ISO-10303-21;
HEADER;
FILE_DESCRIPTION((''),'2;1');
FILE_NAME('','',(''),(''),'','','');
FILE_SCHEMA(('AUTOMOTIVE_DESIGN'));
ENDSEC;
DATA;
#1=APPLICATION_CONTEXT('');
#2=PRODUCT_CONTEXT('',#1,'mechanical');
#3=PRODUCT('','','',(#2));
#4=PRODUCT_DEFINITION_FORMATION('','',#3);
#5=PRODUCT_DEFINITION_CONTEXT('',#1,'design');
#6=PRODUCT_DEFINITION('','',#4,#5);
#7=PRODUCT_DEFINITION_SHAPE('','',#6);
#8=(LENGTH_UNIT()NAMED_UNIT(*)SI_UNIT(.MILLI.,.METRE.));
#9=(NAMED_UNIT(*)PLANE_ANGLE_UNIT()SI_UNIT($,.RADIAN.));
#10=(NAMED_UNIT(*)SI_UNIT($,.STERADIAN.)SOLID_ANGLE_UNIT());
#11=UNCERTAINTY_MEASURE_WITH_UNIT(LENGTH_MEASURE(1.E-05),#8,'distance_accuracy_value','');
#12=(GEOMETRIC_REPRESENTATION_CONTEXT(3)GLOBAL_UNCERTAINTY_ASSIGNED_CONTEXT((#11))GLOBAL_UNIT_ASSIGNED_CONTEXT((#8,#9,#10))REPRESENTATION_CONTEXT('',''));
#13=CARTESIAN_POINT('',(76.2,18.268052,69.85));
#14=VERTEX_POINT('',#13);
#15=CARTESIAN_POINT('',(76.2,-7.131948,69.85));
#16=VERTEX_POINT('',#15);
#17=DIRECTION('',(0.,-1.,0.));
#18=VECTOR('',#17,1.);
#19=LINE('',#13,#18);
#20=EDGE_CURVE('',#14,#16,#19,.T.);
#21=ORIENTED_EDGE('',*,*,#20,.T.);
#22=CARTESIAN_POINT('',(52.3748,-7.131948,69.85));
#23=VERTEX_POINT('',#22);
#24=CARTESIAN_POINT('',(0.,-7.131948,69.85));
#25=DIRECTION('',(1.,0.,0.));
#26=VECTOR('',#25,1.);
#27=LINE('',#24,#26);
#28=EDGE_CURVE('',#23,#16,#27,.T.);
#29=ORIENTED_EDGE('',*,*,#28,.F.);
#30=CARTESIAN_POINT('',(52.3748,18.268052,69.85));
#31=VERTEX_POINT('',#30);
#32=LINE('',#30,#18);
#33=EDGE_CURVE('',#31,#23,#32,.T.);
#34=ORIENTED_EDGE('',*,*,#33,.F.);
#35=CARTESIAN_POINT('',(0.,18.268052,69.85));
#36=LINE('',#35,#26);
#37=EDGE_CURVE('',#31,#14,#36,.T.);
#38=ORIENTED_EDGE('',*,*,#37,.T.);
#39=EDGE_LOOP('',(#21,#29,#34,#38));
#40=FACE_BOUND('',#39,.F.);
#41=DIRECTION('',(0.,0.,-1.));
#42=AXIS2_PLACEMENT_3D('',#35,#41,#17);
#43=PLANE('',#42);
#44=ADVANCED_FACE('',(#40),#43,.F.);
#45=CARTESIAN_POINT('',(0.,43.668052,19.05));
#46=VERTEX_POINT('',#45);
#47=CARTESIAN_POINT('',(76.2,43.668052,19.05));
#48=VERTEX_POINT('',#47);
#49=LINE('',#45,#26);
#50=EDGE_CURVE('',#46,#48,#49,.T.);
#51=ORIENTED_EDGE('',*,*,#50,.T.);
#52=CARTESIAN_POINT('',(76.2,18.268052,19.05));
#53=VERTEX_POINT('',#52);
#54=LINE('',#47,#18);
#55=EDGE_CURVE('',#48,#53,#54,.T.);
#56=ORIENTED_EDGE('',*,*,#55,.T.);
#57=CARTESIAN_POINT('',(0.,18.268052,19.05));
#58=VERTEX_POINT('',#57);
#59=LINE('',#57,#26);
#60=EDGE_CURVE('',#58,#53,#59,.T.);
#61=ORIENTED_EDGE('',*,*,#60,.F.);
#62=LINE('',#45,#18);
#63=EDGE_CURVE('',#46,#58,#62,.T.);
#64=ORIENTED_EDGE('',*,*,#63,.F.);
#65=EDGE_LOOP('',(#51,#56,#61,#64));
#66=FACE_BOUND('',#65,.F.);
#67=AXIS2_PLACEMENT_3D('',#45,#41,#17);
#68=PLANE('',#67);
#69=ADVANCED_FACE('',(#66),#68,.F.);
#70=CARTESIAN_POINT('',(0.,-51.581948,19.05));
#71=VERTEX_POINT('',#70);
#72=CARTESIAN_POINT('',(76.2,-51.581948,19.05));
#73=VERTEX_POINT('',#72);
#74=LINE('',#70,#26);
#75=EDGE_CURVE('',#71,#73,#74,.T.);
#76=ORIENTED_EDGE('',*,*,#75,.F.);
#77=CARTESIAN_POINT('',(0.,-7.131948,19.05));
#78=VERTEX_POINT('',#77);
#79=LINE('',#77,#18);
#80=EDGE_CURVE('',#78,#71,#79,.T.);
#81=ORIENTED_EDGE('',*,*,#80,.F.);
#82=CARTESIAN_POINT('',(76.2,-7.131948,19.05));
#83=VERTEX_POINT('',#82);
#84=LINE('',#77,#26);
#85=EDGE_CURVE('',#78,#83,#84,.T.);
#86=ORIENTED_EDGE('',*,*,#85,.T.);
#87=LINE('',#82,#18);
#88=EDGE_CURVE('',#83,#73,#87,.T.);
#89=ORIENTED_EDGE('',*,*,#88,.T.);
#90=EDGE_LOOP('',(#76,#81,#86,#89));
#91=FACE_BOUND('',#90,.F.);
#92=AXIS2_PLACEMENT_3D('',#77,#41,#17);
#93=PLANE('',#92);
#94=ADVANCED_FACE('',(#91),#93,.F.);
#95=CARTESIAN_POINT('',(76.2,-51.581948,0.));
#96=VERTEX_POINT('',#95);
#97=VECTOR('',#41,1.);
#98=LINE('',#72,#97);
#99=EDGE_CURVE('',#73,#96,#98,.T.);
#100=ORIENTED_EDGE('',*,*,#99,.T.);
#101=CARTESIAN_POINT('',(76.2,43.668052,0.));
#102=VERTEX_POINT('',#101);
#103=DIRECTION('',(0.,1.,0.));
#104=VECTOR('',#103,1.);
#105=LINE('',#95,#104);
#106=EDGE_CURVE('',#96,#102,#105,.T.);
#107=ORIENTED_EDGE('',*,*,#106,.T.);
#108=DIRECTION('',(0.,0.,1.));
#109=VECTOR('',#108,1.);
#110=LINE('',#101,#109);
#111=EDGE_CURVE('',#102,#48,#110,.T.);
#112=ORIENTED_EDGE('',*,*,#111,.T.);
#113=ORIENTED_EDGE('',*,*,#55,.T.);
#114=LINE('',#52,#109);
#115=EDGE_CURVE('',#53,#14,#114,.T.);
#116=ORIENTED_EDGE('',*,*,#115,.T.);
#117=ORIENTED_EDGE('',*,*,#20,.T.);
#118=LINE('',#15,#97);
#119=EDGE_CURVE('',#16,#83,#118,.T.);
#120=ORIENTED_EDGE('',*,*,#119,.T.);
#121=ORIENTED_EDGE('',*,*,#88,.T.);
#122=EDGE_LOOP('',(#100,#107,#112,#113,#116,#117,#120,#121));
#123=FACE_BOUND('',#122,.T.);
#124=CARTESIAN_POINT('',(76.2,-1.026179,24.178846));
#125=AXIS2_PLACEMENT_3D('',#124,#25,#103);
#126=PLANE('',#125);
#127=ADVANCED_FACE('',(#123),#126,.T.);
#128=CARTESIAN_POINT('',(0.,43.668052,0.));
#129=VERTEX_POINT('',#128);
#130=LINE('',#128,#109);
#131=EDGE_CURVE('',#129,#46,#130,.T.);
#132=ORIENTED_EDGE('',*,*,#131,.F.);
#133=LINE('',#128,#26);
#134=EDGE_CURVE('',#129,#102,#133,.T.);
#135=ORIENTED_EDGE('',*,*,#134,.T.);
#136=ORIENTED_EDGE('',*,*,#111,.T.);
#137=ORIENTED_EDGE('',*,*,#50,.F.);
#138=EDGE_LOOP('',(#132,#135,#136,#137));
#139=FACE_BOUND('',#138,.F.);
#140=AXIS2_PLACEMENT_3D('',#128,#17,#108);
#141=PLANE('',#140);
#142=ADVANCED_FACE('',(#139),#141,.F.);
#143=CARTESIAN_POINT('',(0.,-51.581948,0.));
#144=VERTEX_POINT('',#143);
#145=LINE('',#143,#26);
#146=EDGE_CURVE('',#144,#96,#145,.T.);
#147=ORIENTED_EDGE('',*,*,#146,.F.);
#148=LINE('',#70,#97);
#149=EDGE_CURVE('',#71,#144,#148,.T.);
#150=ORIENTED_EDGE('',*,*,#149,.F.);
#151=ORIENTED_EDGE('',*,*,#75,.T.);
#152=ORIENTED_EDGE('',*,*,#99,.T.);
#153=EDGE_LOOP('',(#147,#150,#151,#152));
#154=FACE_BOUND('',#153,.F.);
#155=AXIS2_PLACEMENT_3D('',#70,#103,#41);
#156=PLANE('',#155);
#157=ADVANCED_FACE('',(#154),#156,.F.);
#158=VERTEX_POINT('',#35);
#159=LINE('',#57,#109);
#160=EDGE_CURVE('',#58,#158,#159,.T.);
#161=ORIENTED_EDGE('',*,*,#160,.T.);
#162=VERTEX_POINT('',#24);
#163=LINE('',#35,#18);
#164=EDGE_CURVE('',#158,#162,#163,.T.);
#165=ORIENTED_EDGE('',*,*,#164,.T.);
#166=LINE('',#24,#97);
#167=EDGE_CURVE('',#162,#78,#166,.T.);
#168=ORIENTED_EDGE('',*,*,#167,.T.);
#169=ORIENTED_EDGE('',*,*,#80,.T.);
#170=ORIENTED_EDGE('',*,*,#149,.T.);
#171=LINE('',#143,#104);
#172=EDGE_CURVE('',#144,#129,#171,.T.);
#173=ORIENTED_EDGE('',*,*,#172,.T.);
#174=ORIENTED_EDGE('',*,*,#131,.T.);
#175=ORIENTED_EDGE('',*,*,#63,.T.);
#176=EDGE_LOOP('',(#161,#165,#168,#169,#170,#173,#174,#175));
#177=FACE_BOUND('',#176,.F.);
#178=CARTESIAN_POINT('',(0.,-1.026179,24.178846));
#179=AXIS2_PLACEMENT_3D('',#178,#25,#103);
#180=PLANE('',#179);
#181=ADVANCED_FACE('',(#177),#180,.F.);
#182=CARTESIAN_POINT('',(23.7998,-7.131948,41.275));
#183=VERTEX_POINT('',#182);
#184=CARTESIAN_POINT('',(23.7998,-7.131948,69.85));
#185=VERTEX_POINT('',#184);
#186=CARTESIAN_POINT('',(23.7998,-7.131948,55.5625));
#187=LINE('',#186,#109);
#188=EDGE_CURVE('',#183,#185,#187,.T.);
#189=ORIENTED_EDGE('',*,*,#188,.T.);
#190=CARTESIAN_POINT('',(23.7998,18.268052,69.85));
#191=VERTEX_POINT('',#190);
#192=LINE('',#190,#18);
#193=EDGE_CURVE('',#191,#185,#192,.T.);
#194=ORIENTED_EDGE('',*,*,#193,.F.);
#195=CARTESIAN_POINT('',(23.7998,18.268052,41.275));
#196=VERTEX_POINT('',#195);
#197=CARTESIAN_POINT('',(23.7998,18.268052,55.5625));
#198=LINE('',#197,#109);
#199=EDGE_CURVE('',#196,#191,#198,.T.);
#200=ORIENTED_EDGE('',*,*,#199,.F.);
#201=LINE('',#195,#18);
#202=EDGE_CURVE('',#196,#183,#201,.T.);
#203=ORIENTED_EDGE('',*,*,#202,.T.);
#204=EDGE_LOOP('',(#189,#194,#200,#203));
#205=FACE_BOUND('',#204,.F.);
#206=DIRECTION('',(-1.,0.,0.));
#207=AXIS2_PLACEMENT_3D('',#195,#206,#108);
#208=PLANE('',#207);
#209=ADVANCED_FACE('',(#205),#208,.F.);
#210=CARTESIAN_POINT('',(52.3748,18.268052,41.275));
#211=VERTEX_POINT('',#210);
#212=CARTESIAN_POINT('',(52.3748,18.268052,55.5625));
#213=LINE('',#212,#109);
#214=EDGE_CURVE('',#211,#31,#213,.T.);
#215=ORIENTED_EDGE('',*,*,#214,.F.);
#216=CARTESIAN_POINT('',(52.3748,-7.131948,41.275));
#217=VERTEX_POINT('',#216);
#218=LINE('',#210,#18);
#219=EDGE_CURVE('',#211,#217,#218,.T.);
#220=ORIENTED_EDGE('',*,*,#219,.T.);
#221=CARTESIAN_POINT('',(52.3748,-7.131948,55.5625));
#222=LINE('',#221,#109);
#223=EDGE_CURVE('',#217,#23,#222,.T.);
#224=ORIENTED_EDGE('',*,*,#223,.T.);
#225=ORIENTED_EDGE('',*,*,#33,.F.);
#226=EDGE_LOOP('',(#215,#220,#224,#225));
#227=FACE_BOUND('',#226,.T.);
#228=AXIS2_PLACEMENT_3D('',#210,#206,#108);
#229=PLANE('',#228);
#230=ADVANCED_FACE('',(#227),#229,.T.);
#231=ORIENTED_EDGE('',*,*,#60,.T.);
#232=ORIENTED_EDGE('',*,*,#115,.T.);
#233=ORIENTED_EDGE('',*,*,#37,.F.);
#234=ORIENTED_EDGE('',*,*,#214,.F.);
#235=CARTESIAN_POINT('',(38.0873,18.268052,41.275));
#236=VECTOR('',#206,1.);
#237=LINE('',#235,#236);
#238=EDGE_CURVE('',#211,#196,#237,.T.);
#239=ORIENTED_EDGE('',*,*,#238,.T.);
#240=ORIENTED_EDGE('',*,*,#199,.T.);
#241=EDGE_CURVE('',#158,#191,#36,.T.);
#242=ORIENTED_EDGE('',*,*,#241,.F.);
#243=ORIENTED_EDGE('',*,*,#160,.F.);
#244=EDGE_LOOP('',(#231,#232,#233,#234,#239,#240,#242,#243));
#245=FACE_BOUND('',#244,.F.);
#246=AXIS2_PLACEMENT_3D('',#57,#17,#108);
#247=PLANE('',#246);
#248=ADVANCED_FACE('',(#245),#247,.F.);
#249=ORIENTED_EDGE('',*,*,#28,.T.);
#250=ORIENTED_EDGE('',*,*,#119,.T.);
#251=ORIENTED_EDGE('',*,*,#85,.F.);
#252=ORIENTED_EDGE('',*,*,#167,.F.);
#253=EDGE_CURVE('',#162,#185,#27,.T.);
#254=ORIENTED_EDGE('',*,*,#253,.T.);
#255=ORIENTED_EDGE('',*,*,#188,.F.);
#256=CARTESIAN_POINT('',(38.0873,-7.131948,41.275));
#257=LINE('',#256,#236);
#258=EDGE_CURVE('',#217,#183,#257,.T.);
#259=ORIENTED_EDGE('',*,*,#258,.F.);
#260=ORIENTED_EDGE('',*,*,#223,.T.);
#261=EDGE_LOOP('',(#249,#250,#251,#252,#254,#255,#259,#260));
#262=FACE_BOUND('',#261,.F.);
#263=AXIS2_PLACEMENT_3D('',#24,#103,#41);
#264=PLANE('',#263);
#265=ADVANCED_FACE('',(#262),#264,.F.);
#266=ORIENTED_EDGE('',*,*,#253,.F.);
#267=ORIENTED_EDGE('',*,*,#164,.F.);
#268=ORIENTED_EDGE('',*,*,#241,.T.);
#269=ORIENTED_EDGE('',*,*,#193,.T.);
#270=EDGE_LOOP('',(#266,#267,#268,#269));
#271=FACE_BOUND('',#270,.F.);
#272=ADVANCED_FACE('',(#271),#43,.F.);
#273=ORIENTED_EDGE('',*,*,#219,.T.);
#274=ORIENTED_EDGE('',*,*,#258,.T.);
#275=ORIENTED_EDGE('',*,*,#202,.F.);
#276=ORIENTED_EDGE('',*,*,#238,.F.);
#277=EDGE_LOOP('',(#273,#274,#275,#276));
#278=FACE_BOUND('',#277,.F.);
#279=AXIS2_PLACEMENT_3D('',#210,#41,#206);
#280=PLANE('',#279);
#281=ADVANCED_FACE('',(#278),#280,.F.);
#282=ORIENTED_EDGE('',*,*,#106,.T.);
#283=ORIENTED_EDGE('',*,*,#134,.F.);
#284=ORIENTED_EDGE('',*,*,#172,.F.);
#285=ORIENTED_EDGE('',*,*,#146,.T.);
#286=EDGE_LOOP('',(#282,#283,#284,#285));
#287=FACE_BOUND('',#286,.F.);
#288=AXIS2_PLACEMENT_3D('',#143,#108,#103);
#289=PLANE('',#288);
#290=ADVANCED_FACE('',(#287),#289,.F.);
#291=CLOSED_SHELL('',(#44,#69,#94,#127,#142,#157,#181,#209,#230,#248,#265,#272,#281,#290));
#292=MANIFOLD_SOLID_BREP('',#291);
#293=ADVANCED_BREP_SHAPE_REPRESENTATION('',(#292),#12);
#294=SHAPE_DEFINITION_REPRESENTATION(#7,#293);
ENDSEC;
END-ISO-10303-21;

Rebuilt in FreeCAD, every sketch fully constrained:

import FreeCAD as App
import Part
import Sketcher

V = App.Vector
Q = App.Units.Quantity

doc = App.newDocument("Part")
body = doc.addObject("PartDesign::Body", "Body")

# Sketch on YZ plane
sketch1 = body.newObject("Sketcher::SketchObject", "Sketch")
sketch1.AttachmentSupport = (doc.getObject("YZ_Plane"), [""])
sketch1.MapMode = "FlatFace"
sketch1.addGeometry(Part.LineSegment(V(-51.581948, 0, 0), V(43.668052, 0, 0)), False)
sketch1.addGeometry(Part.LineSegment(V(43.668052, 0, 0), V(43.668052, 19.05, 0)), False)
sketch1.addGeometry(Part.LineSegment(V(43.668052, 19.05, 0), V(18.268052, 19.05, 0)), False)
sketch1.addGeometry(Part.LineSegment(V(18.268052, 19.05, 0), V(18.268052, 69.85, 0)), False)
sketch1.addGeometry(Part.LineSegment(V(18.268052, 69.85, 0), V(-7.131948, 69.85, 0)), False)
sketch1.addGeometry(Part.LineSegment(V(-7.131948, 69.85, 0), V(-7.131948, 19.05, 0)), False)
sketch1.addGeometry(Part.LineSegment(V(-7.131948, 19.05, 0), V(-51.581948, 19.05, 0)), False)
sketch1.addGeometry(Part.LineSegment(V(-51.581948, 19.05, 0), V(-51.581948, 0, 0)), False)
sketch1.addConstraint(Sketcher.Constraint("Coincident", 0, 2, 1, 1))
sketch1.addConstraint(Sketcher.Constraint("Coincident", 1, 2, 2, 1))
sketch1.addConstraint(Sketcher.Constraint("Coincident", 2, 2, 3, 1))
sketch1.addConstraint(Sketcher.Constraint("Coincident", 3, 2, 4, 1))
sketch1.addConstraint(Sketcher.Constraint("Coincident", 4, 2, 5, 1))
sketch1.addConstraint(Sketcher.Constraint("Coincident", 5, 2, 6, 1))
sketch1.addConstraint(Sketcher.Constraint("Coincident", 6, 2, 7, 1))
sketch1.addConstraint(Sketcher.Constraint("Coincident", 7, 2, 0, 1))
sketch1.addConstraint(Sketcher.Constraint("Horizontal", 0))
sketch1.addConstraint(Sketcher.Constraint("Vertical", 1))
sketch1.addConstraint(Sketcher.Constraint("Horizontal", 2))
sketch1.addConstraint(Sketcher.Constraint("Vertical", 3))
sketch1.addConstraint(Sketcher.Constraint("Horizontal", 4))
sketch1.addConstraint(Sketcher.Constraint("Vertical", 5))
sketch1.addConstraint(Sketcher.Constraint("Horizontal", 6))
sketch1.addConstraint(Sketcher.Constraint("Vertical", 7))
sketch1.addConstraint(Sketcher.Constraint("PointOnObject", 0, 2, -1))
sketch1.addConstraint(Sketcher.Constraint("Horizontal", 2, 2, 5, 2))
sketch1.addConstraint(Sketcher.Constraint("Equal", 2, 4))
sketch1.addConstraint(Sketcher.Constraint("DistanceX", 2, 2, 2, 1, Q("1 in")))
sketch1.addConstraint(Sketcher.Constraint("DistanceY", 3, 1, 3, 2, Q("2 in")))
sketch1.addConstraint(Sketcher.Constraint("DistanceX", 0, 1, 0, 2, Q("3.75 in")))
sketch1.addConstraint(Sketcher.Constraint("DistanceY", 1, 1, 1, 2, Q("0.75 in")))
sketch1.addConstraint(Sketcher.Constraint("DistanceX", 4, 2, -1, 1, 7.131948))
pad1 = body.newObject("PartDesign::Pad", "Pad")
pad1.Profile = sketch1
pad1.Length = Q("3 in")

# Sketch on XZ plane
sketch2 = body.newObject("Sketcher::SketchObject", "Sketch001")
sketch2.AttachmentSupport = (doc.getObject("XZ_Plane"), [""])
sketch2.MapMode = "FlatFace"
sketch2.AttachmentOffset = App.Placement(V(0, 0, -18.268052), App.Rotation())
sketch2.addGeometry(Part.LineSegment(V(52.3748, 69.85, 0), V(52.3748, 41.275, 0)), False)
sketch2.addGeometry(Part.LineSegment(V(52.3748, 41.275, 0), V(23.7998, 41.275, 0)), False)
sketch2.addGeometry(Part.LineSegment(V(23.7998, 41.275, 0), V(23.7998, 69.85, 0)), False)
sketch2.addGeometry(Part.LineSegment(V(23.7998, 69.85, 0), V(52.3748, 69.85, 0)), False)
sketch2.addConstraint(Sketcher.Constraint("Coincident", 0, 2, 1, 1))
sketch2.addConstraint(Sketcher.Constraint("Coincident", 1, 2, 2, 1))
sketch2.addConstraint(Sketcher.Constraint("Coincident", 2, 2, 3, 1))
sketch2.addConstraint(Sketcher.Constraint("Coincident", 3, 2, 0, 1))
sketch2.addConstraint(Sketcher.Constraint("Vertical", 0))
sketch2.addConstraint(Sketcher.Constraint("Horizontal", 1))
sketch2.addConstraint(Sketcher.Constraint("Vertical", 2))
sketch2.addConstraint(Sketcher.Constraint("Horizontal", 3))
sketch2.addConstraint(Sketcher.Constraint("Equal", 3, 0))
sketch2.addConstraint(Sketcher.Constraint("DistanceX", 1, 2, 1, 1, Q("1.125 in")))
sketch2.addConstraint(Sketcher.Constraint("DistanceY", -1, 1, 2, 2, Q("2.75 in")))
sketch2.addConstraint(Sketcher.Constraint("DistanceX", -1, 1, 0, 2, Q("2.062 in")))
pocket1 = body.newObject("PartDesign::Pocket", "Pocket")
pocket1.Profile = sketch2
pocket1.Length = Q("1 in")
pocket1.Reversed = True

doc.recompute()
